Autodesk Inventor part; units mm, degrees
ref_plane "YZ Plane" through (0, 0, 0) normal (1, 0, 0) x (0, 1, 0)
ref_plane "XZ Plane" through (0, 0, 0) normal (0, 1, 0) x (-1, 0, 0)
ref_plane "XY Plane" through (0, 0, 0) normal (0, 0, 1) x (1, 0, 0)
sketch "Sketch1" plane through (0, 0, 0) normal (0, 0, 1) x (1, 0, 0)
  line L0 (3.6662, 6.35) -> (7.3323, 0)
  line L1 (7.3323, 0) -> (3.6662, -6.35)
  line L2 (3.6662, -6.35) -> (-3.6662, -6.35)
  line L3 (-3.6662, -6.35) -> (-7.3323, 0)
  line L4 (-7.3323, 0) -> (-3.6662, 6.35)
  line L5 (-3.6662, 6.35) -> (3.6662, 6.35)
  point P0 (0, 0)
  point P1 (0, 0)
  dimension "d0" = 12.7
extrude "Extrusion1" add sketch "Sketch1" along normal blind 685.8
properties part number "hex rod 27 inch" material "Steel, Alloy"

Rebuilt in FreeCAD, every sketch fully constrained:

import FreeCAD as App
import Part
import Sketcher

V = App.Vector
Q = App.Units.Quantity


def add_polygon(sketch, points):
    """Adds a closed chain of lines whose ends are joined by coincident constraints."""
    first, n = sketch.GeometryCount, len(points)
    for a, b in zip(points, points[1:] + points[:1]):
        sketch.addGeometry(Part.LineSegment(App.Vector(*a, 0), App.Vector(*b, 0)), False)
    for i in range(n):
        sketch.addConstraint(Sketcher.Constraint("Coincident", first + i, 2, first + (i + 1) % n, 1))

doc = App.newDocument("Part")
body = doc.addObject("PartDesign::Body", "Body")

sketch1 = body.newObject("Sketcher::SketchObject", "Sketch")
sketch1.AttachmentSupport = (doc.getObject("XY_Plane"), [""])
sketch1.MapMode = "FlatFace"
add_polygon(sketch1, [(7, 0), (4, 6), (-4, 6), (-7, 0), (-4, -6), (4, -6)])
sketch1.addConstraint(Sketcher.Constraint("Horizontal", 1))
sketch1.addConstraint(Sketcher.Constraint("Horizontal", 4))
sketch1.addConstraint(Sketcher.Constraint("Symmetric", 0, 2, 3, 2, -1, 1))
sketch1.addConstraint(Sketcher.Constraint("Symmetric", 2, 2, 5, 2, -1, 1))
sketch1.addConstraint(Sketcher.Constraint("PointOnObject", 2, 2, -1))
sketch1.addConstraint(Sketcher.Constraint("Parallel", 2, 5))
sketch1.addConstraint(Sketcher.Constraint("Vertical", 1, 2, 3, 2))
sketch1.addConstraint(Sketcher.Constraint("DistanceY", 3, 2, 1, 2, Q("0.5 in")))
sketch1.addConstraint(Sketcher.Constraint("Angle", 0, Q("119.9995 deg")))
sketch1.addConstraint(Sketcher.Constraint("DistanceX", 2, 2, 0, 2, Q("0.433 in")))
pad1 = body.newObject("PartDesign::Pad", "Pad")
pad1.Profile = sketch1
pad1.Length = Q("27 in")

doc.recompute()
